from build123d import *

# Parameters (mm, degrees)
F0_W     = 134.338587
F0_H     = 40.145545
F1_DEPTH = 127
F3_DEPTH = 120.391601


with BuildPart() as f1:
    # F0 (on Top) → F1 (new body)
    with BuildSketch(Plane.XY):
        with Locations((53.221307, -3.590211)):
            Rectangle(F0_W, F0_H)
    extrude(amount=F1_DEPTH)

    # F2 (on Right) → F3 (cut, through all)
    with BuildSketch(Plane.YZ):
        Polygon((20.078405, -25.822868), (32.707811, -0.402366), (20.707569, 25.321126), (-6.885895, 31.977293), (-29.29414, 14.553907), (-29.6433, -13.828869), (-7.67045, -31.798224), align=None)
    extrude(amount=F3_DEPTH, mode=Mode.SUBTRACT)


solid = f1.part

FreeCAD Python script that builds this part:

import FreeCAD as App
import Part
import Sketcher
from FreeCAD import Vector
Q = App.Units.Quantity


def add_polygon(sketch, points):
    """Adds a closed chain of lines whose ends are joined by coincident constraints."""
    first, n = sketch.GeometryCount, len(points)
    for a, b in zip(points, points[1:] + points[:1]):
        sketch.addGeometry(Part.LineSegment(App.Vector(*a, 0), App.Vector(*b, 0)), False)
    for i in range(n):
        sketch.addConstraint(Sketcher.Constraint("Coincident", first + i, 2, first + (i + 1) % n, 1))

doc = App.newDocument("Part")
body = doc.addObject("PartDesign::Body", "Body")

sketch1 = body.newObject("Sketcher::SketchObject", "Sketch")
sketch1.AttachmentSupport = (doc.getObject("XY_Plane"), [""])
sketch1.MapMode = "FlatFace"
add_polygon(sketch1, [(-14, 16), (-14, -24), (120, -24), (120, 16)])
sketch1.addConstraint([
    Sketcher.Constraint("Vertical", 0),
    Sketcher.Constraint("Horizontal", 1),
    Sketcher.Constraint("Vertical", 2),
    Sketcher.Constraint("Horizontal", 3),
    Sketcher.Constraint("DistanceX", -1, 1, 1, 2, 120.390601),
    Sketcher.Constraint("DistanceX", 1, 1, 1, 2, 134.338587),
    Sketcher.Constraint("DistanceY", 0, 2, 0, 1, 40.145545),
    Sketcher.Constraint("DistanceY", -1, 1, 2, 2, 16.482561),
])
pad1 = body.newObject("PartDesign::Pad", "Pad")
pad1.Profile = sketch1
pad1.Length = Q("5 in")

sketch2 = body.newObject("Sketcher::SketchObject", "Sketch001")
sketch2.AttachmentSupport = (doc.getObject("YZ_Plane"), [""])
sketch2.MapMode = "FlatFace"
add_polygon(sketch2, [(20, -26), (33, 0), (21, 25), (-7, 32), (-29, 15), (-30, -14), (-8, -32)])
sketch2.addConstraint([
    Sketcher.Constraint("Equal", 0, 1),
    Sketcher.Constraint("Equal", 1, 2),
    Sketcher.Constraint("Equal", 2, 3),
    Sketcher.Constraint("Equal", 3, 4),
    Sketcher.Constraint("Equal", 4, 5),
    Sketcher.Constraint("Equal", 5, 6),
    Sketcher.Constraint("DistanceX", 4, 2, -1, 1, 29.6433),
    Sketcher.Constraint("DistanceY", 6, 2, 0, 2, 25.420502),
    Sketcher.Constraint("DistanceY", 6, 2, 4, 2, 11.993999),
    Sketcher.Constraint("DistanceX", 2, 2, 6, 2, 26.9643),
    Sketcher.Constraint("DistanceX", -1, 1, 0, 2, 32.707811),
    Sketcher.Constraint("DistanceX", -1, 1, 1, 2, 20.707569),
    Sketcher.Constraint("DistanceX", 3, 2, -1, 1, 29.29414),
    Sketcher.Constraint("DistanceY", 4, 2, -1, 1, 13.828869),
])
pocket1 = body.newObject("PartDesign::Pocket", "Pocket")
pocket1.Profile = sketch2
pocket1.Type = "ThroughAll"
pocket1.Reversed = True

doc.recompute()
